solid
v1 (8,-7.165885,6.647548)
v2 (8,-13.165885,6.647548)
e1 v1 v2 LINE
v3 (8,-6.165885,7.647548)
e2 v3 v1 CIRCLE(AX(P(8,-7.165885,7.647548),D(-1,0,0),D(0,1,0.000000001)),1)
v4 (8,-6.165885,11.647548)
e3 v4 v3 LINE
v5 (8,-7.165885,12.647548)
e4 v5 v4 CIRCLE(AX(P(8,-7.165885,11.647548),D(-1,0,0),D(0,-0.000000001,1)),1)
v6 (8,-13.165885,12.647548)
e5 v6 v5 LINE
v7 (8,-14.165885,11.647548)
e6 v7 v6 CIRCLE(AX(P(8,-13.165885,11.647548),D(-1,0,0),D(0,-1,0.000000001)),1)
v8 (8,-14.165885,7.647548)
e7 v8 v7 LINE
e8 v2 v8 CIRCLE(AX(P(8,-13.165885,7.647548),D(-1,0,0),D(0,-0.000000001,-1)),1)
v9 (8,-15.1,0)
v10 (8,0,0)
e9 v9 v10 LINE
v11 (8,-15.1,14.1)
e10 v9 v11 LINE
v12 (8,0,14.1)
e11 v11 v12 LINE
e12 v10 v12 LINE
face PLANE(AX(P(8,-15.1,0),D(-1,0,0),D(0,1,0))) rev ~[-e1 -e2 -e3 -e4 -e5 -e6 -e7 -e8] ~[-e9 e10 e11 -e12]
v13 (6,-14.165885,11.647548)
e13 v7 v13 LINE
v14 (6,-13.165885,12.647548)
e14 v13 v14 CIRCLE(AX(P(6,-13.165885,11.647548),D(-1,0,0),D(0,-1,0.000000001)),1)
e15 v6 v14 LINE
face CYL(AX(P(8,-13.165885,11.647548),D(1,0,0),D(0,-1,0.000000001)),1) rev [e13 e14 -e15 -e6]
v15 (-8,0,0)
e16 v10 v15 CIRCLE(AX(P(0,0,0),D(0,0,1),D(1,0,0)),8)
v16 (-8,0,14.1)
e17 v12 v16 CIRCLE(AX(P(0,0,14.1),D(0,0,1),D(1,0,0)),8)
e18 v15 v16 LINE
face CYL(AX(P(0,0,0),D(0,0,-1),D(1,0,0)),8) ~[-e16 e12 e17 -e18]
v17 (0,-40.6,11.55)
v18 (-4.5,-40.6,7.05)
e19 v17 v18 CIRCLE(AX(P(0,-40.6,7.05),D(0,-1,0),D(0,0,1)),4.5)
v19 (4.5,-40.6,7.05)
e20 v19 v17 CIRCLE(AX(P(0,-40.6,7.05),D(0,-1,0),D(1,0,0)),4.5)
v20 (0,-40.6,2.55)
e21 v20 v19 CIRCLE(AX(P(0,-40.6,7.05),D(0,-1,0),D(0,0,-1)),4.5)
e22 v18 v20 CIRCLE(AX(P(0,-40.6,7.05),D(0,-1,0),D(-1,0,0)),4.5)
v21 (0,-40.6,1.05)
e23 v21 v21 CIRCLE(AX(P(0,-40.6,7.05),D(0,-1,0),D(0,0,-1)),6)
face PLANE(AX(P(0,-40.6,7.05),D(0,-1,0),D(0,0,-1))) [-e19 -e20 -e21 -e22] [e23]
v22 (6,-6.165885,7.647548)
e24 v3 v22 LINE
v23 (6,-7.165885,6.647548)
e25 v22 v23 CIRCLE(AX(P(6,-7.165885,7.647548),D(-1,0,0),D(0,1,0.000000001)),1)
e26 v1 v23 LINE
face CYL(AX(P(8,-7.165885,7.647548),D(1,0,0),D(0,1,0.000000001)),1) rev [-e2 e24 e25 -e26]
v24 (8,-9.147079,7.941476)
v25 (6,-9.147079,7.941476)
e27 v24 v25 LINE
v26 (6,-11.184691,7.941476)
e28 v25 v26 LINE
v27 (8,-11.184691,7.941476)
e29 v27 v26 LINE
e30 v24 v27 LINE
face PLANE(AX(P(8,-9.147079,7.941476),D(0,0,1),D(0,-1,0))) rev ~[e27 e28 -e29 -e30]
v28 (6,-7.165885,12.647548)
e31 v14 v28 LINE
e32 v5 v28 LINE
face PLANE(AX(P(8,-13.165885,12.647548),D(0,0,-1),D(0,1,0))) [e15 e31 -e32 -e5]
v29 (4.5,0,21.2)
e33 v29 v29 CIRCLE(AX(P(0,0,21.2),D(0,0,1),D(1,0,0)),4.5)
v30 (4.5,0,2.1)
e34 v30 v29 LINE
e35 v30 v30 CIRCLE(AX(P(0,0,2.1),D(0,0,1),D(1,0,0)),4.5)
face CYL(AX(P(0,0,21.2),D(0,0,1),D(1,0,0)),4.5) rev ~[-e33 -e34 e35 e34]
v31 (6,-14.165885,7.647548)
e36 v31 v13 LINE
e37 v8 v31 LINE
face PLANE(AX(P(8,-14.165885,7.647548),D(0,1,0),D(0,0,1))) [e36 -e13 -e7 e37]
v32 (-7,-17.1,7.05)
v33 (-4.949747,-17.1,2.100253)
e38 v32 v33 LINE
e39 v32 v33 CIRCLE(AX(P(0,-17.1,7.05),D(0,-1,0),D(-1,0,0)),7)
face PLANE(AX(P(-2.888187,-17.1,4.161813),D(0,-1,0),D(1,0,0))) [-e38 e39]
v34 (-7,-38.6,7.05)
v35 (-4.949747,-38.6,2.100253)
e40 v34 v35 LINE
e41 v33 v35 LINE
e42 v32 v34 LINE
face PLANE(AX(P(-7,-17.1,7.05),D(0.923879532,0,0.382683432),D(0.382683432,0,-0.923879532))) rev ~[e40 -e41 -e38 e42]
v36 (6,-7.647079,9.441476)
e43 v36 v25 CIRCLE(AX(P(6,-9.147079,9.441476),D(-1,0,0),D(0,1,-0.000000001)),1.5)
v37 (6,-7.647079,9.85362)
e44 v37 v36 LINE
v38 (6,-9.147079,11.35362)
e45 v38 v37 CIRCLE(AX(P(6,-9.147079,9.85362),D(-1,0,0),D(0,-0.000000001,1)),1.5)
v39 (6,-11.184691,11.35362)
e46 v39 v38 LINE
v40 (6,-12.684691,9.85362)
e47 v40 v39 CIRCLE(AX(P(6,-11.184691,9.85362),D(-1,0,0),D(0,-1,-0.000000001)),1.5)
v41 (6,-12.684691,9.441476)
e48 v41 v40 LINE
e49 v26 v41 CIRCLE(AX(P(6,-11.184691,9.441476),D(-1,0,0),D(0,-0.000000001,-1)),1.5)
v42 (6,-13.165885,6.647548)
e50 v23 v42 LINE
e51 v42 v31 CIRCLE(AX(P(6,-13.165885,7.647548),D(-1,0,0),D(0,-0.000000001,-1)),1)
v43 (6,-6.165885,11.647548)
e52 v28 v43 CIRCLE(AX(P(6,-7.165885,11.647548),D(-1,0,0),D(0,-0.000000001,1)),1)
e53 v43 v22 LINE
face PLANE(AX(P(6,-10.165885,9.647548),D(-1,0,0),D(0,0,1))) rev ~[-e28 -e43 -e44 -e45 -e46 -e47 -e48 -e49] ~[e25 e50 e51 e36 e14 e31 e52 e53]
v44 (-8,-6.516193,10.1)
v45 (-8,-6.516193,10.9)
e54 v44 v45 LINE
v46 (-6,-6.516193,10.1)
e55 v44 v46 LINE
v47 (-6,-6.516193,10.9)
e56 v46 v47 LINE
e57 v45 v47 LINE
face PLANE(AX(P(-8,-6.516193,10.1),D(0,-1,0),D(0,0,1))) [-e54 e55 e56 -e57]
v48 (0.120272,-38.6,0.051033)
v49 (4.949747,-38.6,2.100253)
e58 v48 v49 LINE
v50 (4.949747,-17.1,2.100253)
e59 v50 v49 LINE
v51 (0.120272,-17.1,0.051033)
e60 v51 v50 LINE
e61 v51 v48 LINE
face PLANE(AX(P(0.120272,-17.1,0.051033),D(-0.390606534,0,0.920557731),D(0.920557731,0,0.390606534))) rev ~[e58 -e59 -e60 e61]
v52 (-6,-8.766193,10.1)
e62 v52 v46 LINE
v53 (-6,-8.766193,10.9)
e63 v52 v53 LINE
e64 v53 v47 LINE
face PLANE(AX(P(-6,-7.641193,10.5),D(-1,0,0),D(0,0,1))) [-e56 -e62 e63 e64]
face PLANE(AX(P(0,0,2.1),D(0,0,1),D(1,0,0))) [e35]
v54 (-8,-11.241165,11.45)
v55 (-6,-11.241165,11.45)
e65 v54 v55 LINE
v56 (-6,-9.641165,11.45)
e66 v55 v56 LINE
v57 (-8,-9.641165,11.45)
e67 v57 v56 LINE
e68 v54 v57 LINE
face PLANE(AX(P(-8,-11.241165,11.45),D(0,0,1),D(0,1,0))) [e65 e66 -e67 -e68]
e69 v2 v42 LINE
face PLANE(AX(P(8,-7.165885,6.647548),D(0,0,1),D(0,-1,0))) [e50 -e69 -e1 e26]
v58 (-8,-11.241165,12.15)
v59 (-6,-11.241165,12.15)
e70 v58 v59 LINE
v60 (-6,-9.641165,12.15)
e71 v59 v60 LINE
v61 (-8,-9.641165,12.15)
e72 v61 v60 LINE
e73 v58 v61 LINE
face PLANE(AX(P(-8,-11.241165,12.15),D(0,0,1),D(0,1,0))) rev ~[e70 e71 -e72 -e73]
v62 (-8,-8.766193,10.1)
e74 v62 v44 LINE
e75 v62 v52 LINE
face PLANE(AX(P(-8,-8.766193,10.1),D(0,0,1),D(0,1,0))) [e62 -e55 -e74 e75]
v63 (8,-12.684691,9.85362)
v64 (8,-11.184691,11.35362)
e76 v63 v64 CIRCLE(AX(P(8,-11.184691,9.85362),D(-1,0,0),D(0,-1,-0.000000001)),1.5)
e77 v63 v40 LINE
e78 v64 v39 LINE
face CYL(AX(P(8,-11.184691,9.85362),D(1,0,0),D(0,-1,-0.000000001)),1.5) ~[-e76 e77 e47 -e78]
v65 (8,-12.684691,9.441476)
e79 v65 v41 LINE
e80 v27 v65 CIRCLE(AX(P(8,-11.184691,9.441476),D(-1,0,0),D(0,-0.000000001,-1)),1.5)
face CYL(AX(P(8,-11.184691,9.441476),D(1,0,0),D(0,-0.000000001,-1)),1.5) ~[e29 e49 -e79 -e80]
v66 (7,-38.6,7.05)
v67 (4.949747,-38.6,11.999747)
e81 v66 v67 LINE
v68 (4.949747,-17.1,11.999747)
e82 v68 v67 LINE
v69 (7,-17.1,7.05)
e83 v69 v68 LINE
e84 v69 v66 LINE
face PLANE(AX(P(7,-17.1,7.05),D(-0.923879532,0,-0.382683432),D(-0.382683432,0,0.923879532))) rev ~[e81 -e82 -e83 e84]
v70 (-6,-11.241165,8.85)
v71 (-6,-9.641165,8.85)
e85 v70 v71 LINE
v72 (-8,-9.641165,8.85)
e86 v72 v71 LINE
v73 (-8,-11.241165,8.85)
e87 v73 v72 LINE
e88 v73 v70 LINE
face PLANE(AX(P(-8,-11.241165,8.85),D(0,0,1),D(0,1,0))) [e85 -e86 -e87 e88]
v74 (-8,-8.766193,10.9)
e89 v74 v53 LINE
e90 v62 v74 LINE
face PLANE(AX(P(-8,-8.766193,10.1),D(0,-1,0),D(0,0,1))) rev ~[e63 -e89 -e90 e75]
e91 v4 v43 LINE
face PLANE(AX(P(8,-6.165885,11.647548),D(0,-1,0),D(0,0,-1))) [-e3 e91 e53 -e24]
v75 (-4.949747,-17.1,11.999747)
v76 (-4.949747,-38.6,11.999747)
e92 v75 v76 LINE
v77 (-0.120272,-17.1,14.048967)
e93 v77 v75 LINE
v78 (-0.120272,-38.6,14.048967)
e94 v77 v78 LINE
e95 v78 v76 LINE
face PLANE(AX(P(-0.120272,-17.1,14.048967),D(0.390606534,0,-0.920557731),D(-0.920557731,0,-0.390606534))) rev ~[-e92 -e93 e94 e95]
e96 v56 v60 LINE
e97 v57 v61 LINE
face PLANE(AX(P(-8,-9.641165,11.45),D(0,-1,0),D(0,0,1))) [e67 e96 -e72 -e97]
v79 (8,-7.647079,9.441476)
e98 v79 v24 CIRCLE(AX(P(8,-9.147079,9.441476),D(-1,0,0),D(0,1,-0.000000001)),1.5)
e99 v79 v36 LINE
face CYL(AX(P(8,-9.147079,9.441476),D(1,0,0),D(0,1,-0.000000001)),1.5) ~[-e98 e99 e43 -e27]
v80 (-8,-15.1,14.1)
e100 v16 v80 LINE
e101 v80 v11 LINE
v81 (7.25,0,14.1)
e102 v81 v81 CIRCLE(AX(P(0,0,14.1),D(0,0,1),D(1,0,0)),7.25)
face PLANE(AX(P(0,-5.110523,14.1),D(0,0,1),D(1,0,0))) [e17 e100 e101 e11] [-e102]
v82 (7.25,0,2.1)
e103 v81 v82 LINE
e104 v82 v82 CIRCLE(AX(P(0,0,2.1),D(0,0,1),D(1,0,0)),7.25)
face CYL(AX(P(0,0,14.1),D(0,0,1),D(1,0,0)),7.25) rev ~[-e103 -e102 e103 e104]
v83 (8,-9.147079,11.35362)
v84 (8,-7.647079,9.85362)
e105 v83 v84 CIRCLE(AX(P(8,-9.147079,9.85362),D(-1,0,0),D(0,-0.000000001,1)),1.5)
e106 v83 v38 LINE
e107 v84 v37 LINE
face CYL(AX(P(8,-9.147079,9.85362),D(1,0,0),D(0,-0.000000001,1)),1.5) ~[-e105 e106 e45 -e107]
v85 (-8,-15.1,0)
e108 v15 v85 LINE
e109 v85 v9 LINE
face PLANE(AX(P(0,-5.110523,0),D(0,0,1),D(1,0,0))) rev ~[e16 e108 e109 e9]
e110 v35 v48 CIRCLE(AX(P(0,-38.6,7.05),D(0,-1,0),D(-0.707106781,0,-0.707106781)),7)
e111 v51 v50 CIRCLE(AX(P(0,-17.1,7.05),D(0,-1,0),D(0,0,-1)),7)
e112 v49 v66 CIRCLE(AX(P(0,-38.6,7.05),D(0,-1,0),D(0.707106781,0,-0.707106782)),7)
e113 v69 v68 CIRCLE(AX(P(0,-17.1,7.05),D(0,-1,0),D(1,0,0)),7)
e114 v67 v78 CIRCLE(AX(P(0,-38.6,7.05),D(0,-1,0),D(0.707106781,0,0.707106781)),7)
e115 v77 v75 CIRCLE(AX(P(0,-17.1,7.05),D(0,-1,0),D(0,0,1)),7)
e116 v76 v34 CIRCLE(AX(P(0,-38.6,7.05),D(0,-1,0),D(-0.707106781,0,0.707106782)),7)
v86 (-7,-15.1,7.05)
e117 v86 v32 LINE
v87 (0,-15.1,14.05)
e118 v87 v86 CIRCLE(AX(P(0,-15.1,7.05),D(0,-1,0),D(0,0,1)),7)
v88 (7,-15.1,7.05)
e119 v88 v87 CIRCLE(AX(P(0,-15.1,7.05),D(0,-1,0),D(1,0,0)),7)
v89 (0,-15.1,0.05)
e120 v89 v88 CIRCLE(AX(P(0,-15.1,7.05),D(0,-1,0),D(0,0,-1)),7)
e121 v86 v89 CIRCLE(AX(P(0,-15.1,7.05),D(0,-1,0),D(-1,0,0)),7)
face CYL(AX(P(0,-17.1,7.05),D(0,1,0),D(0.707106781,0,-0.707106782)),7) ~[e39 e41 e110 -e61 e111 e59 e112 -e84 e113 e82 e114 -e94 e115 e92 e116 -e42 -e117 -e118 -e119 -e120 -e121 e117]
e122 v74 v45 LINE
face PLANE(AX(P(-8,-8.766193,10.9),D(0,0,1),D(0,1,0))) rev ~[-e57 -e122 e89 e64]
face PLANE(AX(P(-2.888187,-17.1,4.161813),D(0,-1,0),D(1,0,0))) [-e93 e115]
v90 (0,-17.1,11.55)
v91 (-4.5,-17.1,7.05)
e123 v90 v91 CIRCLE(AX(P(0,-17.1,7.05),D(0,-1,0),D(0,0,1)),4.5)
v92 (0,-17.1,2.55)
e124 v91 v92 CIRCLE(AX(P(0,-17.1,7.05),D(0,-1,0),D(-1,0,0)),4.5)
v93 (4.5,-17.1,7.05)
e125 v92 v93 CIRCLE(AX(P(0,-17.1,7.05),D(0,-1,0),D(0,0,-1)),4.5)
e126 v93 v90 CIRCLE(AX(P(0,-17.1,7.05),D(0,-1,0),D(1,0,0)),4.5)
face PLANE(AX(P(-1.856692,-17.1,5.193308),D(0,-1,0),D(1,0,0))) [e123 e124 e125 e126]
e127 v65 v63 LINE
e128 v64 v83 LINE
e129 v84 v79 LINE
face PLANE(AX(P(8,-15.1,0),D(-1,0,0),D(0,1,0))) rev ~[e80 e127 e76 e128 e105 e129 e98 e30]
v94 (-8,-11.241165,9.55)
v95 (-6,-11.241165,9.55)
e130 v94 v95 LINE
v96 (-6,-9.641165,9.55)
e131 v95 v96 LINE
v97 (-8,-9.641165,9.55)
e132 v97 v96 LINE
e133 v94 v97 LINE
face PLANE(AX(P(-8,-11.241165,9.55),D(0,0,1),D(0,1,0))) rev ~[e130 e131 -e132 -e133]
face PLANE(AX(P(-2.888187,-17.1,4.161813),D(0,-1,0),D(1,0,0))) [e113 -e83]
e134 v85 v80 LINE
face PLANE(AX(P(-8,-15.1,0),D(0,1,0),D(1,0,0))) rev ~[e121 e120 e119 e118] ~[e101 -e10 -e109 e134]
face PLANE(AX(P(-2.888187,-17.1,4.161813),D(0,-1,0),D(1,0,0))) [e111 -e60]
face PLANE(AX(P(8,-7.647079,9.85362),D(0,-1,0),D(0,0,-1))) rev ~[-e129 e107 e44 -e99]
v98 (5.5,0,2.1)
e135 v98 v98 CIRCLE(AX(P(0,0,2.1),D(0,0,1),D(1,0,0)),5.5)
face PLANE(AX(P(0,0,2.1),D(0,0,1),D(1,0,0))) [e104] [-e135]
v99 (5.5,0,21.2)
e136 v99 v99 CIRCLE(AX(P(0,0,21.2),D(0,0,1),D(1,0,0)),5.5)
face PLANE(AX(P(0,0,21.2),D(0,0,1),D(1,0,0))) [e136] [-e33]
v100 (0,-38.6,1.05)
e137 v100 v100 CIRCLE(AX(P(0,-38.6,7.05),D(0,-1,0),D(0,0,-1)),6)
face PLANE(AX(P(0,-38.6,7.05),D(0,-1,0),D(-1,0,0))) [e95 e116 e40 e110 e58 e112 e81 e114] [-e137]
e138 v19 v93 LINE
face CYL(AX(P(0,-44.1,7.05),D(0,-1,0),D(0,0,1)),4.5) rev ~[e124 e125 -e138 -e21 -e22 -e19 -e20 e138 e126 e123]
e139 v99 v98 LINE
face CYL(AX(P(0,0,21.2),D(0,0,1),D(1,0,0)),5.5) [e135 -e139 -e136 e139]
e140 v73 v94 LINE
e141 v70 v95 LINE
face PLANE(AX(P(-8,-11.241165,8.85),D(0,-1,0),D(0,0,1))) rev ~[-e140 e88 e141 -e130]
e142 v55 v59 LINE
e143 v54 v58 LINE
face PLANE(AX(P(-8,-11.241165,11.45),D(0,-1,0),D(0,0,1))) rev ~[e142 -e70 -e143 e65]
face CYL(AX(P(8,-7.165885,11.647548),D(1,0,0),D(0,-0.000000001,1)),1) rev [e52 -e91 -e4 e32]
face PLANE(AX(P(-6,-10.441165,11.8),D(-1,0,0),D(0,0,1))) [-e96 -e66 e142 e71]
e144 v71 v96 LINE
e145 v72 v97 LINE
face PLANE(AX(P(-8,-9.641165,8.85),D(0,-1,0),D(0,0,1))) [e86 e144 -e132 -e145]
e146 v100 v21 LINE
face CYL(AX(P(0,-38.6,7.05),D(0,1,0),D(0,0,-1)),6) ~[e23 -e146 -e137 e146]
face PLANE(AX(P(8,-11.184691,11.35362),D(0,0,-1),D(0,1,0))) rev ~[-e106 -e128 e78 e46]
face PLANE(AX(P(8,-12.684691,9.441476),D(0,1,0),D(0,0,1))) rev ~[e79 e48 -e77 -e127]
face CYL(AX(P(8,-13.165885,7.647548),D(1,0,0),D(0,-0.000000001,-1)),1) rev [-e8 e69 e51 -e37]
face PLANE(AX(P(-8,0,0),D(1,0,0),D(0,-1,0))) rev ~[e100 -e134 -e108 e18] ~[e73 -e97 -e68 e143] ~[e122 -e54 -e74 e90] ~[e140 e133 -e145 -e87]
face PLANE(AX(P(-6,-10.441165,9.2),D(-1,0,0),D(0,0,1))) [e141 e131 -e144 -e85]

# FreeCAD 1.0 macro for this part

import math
import FreeCAD as App
import Part
import Sketcher

V = App.Vector
Q = App.Units.Quantity


def add_polygon(sketch, points):
    """Adds a closed chain of lines whose ends are joined by coincident constraints."""
    first, n = sketch.GeometryCount, len(points)
    for a, b in zip(points, points[1:] + points[:1]):
        sketch.addGeometry(Part.LineSegment(App.Vector(*a, 0), App.Vector(*b, 0)), False)
    for i in range(n):
        sketch.addConstraint(Sketcher.Constraint("Coincident", first + i, 2, first + (i + 1) % n, 1))

doc = App.newDocument("Part")
body = doc.addObject("PartDesign::Body", "Body")

sketch1 = body.newObject("Sketcher::SketchObject", "Sketch")
sketch1.AttachmentSupport = (doc.getObject("XY_Plane"), [""])
sketch1.MapMode = "FlatFace"
sketch1.addGeometry(Part.LineSegment(V(8, -15, 0), V(8, 0, 0)), False)
sketch1.addGeometry(Part.ArcOfCircle(Part.Circle(V(0, 0, 0), V(0, 0, 1), 8), math.radians(0), math.radians(180)), False)
sketch1.addGeometry(Part.LineSegment(V(-8, 0, 0), V(-8, -15, 0)), False)
sketch1.addGeometry(Part.LineSegment(V(-8, -15, 0), V(8, -15, 0)), False)
sketch1.addConstraint(Sketcher.Constraint("Tangent", 0, 2, 1, 1))
sketch1.addConstraint(Sketcher.Constraint("Tangent", 1, 2, 2, 1))
sketch1.addConstraint(Sketcher.Constraint("Coincident", 2, 2, 3, 1))
sketch1.addConstraint(Sketcher.Constraint("Coincident", 3, 2, 0, 1))
sketch1.addConstraint(Sketcher.Constraint("Vertical", 0))
sketch1.addConstraint(Sketcher.Constraint("Vertical", 2))
sketch1.addConstraint(Sketcher.Constraint("Horizontal", 3))
sketch1.addConstraint(Sketcher.Constraint("Coincident", 1, 3, -1, 1))
sketch1.addConstraint(Sketcher.Constraint("Radius", 1, Q("8 mm")))
sketch1.addConstraint(Sketcher.Constraint("DistanceY", 0, 1, 0, 2, Q("15.1 mm")))
pad1 = body.newObject("PartDesign::Pad", "Pad")
pad1.Profile = sketch1
pad1.Length = 14.1

sketch2 = body.newObject("Sketcher::SketchObject", "Sketch001")
sketch2.AttachmentSupport = (doc.getObject("XZ_Plane"), [""])
sketch2.MapMode = "FlatFace"
sketch2.AttachmentOffset = App.Placement(V(0, 0, 15.1), App.Rotation())
sketch2.addGeometry(Part.ArcOfCircle(Part.Circle(V(0, 7, 0), V(0, 0, 1), 7), math.radians(-90), math.radians(0)), False)
sketch2.addGeometry(Part.ArcOfCircle(Part.Circle(V(0, 7, 0), V(0, 0, 1), 7), math.radians(0), math.radians(90)), False)
sketch2.addGeometry(Part.ArcOfCircle(Part.Circle(V(0, 7, 0), V(0, 0, 1), 7), math.radians(90), math.radians(180)), False)
sketch2.addGeometry(Part.ArcOfCircle(Part.Circle(V(0, 7, 0), V(0, 0, 1), 7), math.radians(-180), math.radians(-90)), False)
sketch2.addConstraint(Sketcher.Constraint("Tangent", 0, 2, 1, 1))
sketch2.addConstraint(Sketcher.Constraint("Tangent", 1, 2, 2, 1))
sketch2.addConstraint(Sketcher.Constraint("Tangent", 2, 2, 3, 1))
sketch2.addConstraint(Sketcher.Constraint("Tangent", 3, 2, 0, 1))
sketch2.addConstraint(Sketcher.Constraint("Equal", 0, 1))
sketch2.addConstraint(Sketcher.Constraint("Symmetric", 0, 2, 2, 2, -2))
sketch2.addConstraint(Sketcher.Constraint("PointOnObject", 1, 2, -2))
sketch2.addConstraint(Sketcher.Constraint("PointOnObject", 3, 2, -2))
sketch2.addConstraint(Sketcher.Constraint("Horizontal", 3, 3, 0, 2))
sketch2.addConstraint(Sketcher.Constraint("Radius", 0, Q("7 mm")))
sketch2.addConstraint(Sketcher.Constraint("DistanceY", -1, 1, 0, 3, Q("7.05 mm")))
pad2 = body.newObject("PartDesign::Pad", "Pad001")
pad2.Profile = sketch2
pad2.Length = 2

sketch3 = body.newObject("Sketcher::SketchObject", "Sketch002")
sketch3.AttachmentSupport = (doc.getObject("XZ_Plane"), [""])
sketch3.MapMode = "FlatFace"
sketch3.AttachmentOffset = App.Placement(V(0, 0, 17.1), App.Rotation())
sketch3.addGeometry(Part.ArcOfCircle(Part.Circle(V(0, 7, 0), V(0, 0, 1), 7), math.radians(-45), math.radians(0)), False)
sketch3.addGeometry(Part.LineSegment(V(7, 7, 0), V(5, 12, 0)), False)
sketch3.addGeometry(Part.ArcOfCircle(Part.Circle(V(0, 7, 0), V(0, 0, 1), 7), math.radians(45), math.radians(91)), False)
sketch3.addGeometry(Part.LineSegment(V(0, 14, 0), V(-5, 12, 0)), False)
sketch3.addGeometry(Part.ArcOfCircle(Part.Circle(V(0, 7, 0), V(0, 0, 1), 7), math.radians(135), math.radians(180)), False)
sketch3.addGeometry(Part.LineSegment(V(-7, 7, 0), V(-5, 2, 0)), False)
sketch3.addGeometry(Part.ArcOfCircle(Part.Circle(V(0, 7, 0), V(0, 0, 1), 7), math.radians(-135), math.radians(-89)), False)
sketch3.addGeometry(Part.LineSegment(V(0, 0, 0), V(5, 2, 0)), False)
sketch3.addConstraint(Sketcher.Constraint("Coincident", 0, 2, 1, 1))
sketch3.addConstraint(Sketcher.Constraint("Coincident", 1, 2, 2, 1))
sketch3.addConstraint(Sketcher.Constraint("Coincident", 2, 2, 3, 1))
sketch3.addConstraint(Sketcher.Constraint("Coincident", 3, 2, 4, 1))
sketch3.addConstraint(Sketcher.Constraint("Coincident", 4, 2, 5, 1))
sketch3.addConstraint(Sketcher.Constraint("Coincident", 5, 2, 6, 1))
sketch3.addConstraint(Sketcher.Constraint("Coincident", 6, 2, 7, 1))
sketch3.addConstraint(Sketcher.Constraint("Coincident", 7, 2, 0, 1))
sketch3.addConstraint(Sketcher.Constraint("Coincident", 2, 3, 0, 3))
sketch3.addConstraint(Sketcher.Constraint("Coincident", 4, 3, 0, 3))
sketch3.addConstraint(Sketcher.Constraint("Coincident", 6, 3, 0, 3))
sketch3.addConstraint(Sketcher.Constraint("Equal", 0, 2))
sketch3.addConstraint(Sketcher.Constraint("Equal", 2, 4))
sketch3.addConstraint(Sketcher.Constraint("Equal", 4, 6))
sketch3.addConstraint(Sketcher.Constraint("Symmetric", 1, 2, 3, 2, -2))
sketch3.addConstraint(Sketcher.Constraint("Parallel", 1, 5))
sketch3.addConstraint(Sketcher.Constraint("Parallel", 3, 7))
sketch3.addConstraint(Sketcher.Constraint("Horizontal", 6, 3, 0, 2))
sketch3.addConstraint(Sketcher.Constraint("Horizontal", 0, 2, 4, 2))
sketch3.addConstraint(Sketcher.Constraint("Horizontal", 5, 2, 7, 2))
sketch3.addConstraint(Sketcher.Constraint("Radius", 0, Q("7 mm")))
sketch3.addConstraint(Sketcher.Constraint("Angle", 1, Q("112.5 deg")))
sketch3.addConstraint(Sketcher.Constraint("DistanceY", -1, 1, 0, 3, Q("7.05 mm")))
sketch3.addConstraint(Sketcher.Constraint("Distance", 3, Q("5.246249 mm")))
pad3 = body.newObject("PartDesign::Pad", "Pad002")
pad3.Profile = sketch3
pad3.Length = 21.5

sketch4 = body.newObject("Sketcher::SketchObject", "Sketch003")
sketch4.AttachmentSupport = (doc.getObject("XZ_Plane"), [""])
sketch4.MapMode = "FlatFace"
sketch4.AttachmentOffset = App.Placement(V(0, 0, 38.6), App.Rotation())
sketch4.addGeometry(Part.Circle(V(0, 7, 0), V(0, 0, 1), 4.5), False)
sketch4.addConstraint(Sketcher.Constraint("PointOnObject", 0, 3, -2))
sketch4.addConstraint(Sketcher.Constraint("Diameter", 0, Q("9 mm")))
sketch4.addConstraint(Sketcher.Constraint("DistanceY", -1, 1, 0, 3, Q("7.05 mm")))
pocket1 = body.newObject("PartDesign::Pocket", "Pocket")
pocket1.Profile = sketch4
pocket1.Length = 20

sketch5 = body.newObject("Sketcher::SketchObject", "Sketch004")
sketch5.AttachmentSupport = (doc.getObject("XZ_Plane"), [""])
sketch5.MapMode = "FlatFace"
sketch5.AttachmentOffset = App.Placement(V(0, 0, 38.6), App.Rotation())
sketch5.addGeometry(Part.Circle(V(0, 7, 0), V(0, 0, 1), 6), False)
sketch5.addConstraint(Sketcher.Constraint("PointOnObject", 0, 3, -2))
sketch5.addConstraint(Sketcher.Constraint("Diameter", 0, Q("12 mm")))
sketch5.addConstraint(Sketcher.Constraint("DistanceY", -1, 1, 0, 3, Q("7.05 mm")))
pad4 = body.newObject("PartDesign::Pad", "Pad003")
pad4.Profile = sketch5
pad4.Length = 2

sketch6 = body.newObject("Sketcher::SketchObject", "Sketch005")
sketch6.AttachmentSupport = (doc.getObject("XZ_Plane"), [""])
sketch6.MapMode = "FlatFace"
sketch6.AttachmentOffset = App.Placement(V(0, 0, 44.1), App.Rotation())
sketch6.addGeometry(Part.ArcOfCircle(Part.Circle(V(0, 7.1, 0), V(0, 0, 1), 4.5), math.radians(-90), math.radians(0)), False)
sketch6.addGeometry(Part.ArcOfCircle(Part.Circle(V(0, 7, 0), V(0, 0, 1), 4.5), math.radians(0), math.radians(90)), False)
sketch6.addGeometry(Part.ArcOfCircle(Part.Circle(V(0, 7, 0), V(0, 0, 1), 4.5), math.radians(90), math.radians(180)), False)
sketch6.addGeometry(Part.ArcOfCircle(Part.Circle(V(0, 7.1, 0), V(0, 0, 1), 4.5), math.radians(-180), math.radians(-90)), False)
sketch6.addConstraint(Sketcher.Constraint("Tangent", 0, 2, 1, 1))
sketch6.addConstraint(Sketcher.Constraint("Tangent", 1, 2, 2, 1))
sketch6.addConstraint(Sketcher.Constraint("Tangent", 2, 2, 3, 1))
sketch6.addConstraint(Sketcher.Constraint("Tangent", 3, 2, 0, 1))
sketch6.addConstraint(Sketcher.Constraint("Equal", 0, 1))
sketch6.addConstraint(Sketcher.Constraint("Symmetric", 0, 2, 2, 2, -2))
sketch6.addConstraint(Sketcher.Constraint("PointOnObject", 1, 2, -2))
sketch6.addConstraint(Sketcher.Constraint("PointOnObject", 3, 2, -2))
sketch6.addConstraint(Sketcher.Constraint("Horizontal", 3, 3, 0, 2))
sketch6.addConstraint(Sketcher.Constraint("Radius", 0, Q("4.5 mm")))
sketch6.addConstraint(Sketcher.Constraint("DistanceY", -1, 1, 0, 3, Q("7.05 mm")))
pocket2 = body.newObject("PartDesign::Pocket", "Pocket001")
pocket2.Profile = sketch6
pocket2.Length = 27

sketch7 = body.newObject("Sketcher::SketchObject", "Sketch006")
sketch7.AttachmentSupport = (doc.getObject("XY_Plane"), [""])
sketch7.MapMode = "FlatFace"
sketch7.AttachmentOffset = App.Placement(V(0, 0, 14.1), App.Rotation())
sketch7.addGeometry(Part.Circle(V(0, 0, 0), V(0, 0, 1), 4.5), False)
sketch7.addConstraint(Sketcher.Constraint("Coincident", 0, 3, -1, 1))
sketch7.addConstraint(Sketcher.Constraint("Diameter", 0, Q("9 mm")))
pocket3 = body.newObject("PartDesign::Pocket", "Pocket002")
pocket3.Profile = sketch7
pocket3.Length = 12

sketch8 = body.newObject("Sketcher::SketchObject", "Sketch007")
sketch8.AttachmentSupport = (doc.getObject("XY_Plane"), [""])
sketch8.MapMode = "FlatFace"
sketch8.AttachmentOffset = App.Placement(V(0, 0, 14.1), App.Rotation())
sketch8.addGeometry(Part.Circle(V(0, 0, 0), V(0, 0, 1), 7), False)
sketch8.addGeometry(Part.Circle(V(0, 0, 0), V(0, 0, 1), 6), False)
sketch8.addConstraint(Sketcher.Constraint("Coincident", 0, 3, -1, 1))
sketch8.addConstraint(Sketcher.Constraint("Coincident", 1, 3, -1, 1))
sketch8.addConstraint(Sketcher.Constraint("Diameter", 1, Q("11 mm")))
sketch8.addConstraint(Sketcher.Constraint("Diameter", 0, Q("14.5 mm")))
pocket4 = body.newObject("PartDesign::Pocket", "Pocket003")
pocket4.Profile = sketch8
pocket4.Length = 12

sketch9 = body.newObject("Sketcher::SketchObject", "Sketch008")
sketch9.AttachmentSupport = (doc.getObject("XY_Plane"), [""])
sketch9.MapMode = "FlatFace"
sketch9.AttachmentOffset = App.Placement(V(0, 0, 21.2), App.Rotation())
sketch9.addGeometry(Part.Circle(V(0, 0, 0), V(0, 0, 1), 5.5), False)
sketch9.addGeometry(Part.Circle(V(0, 0, 0), V(0, 0, 1), 4.5), False)
sketch9.addConstraint(Sketcher.Constraint("Coincident", 0, 3, -1, 1))
sketch9.addConstraint(Sketcher.Constraint("Coincident", 1, 3, -1, 1))
sketch9.addConstraint(Sketcher.Constraint("Diameter", 0, Q("11 mm")))
sketch9.addConstraint(Sketcher.Constraint("Diameter", 1, Q("9 mm")))
pad5 = body.newObject("PartDesign::Pad", "Pad004")
pad5.Profile = sketch9
pad5.Length = 7.1
pad5.Reversed = True

sketch10 = body.newObject("Sketcher::SketchObject", "Sketch009")
sketch10.AttachmentSupport = (doc.getObject("YZ_Plane"), [""])
sketch10.MapMode = "FlatFace"
sketch10.AttachmentOffset = App.Placement(V(0, 0, -8), App.Rotation())
add_polygon(sketch10, [(-6.5, 10.1), (-8.8, 10.1), (-8.8, 10.9), (-6.5, 10.9)])
add_polygon(sketch10, [(-9.6, 11.4), (-11.2, 11.4), (-11.2, 12.2), (-9.6, 12.2)])
add_polygon(sketch10, [(-9.6, 8.8), (-11.2, 8.8), (-11.2, 9.6), (-9.6, 9.6)])
sketch10.addConstraint(Sketcher.Constraint("Horizontal", 0))
sketch10.addConstraint(Sketcher.Constraint("Vertical", 1))
sketch10.addConstraint(Sketcher.Constraint("Horizontal", 2))
sketch10.addConstraint(Sketcher.Constraint("Vertical", 3))
sketch10.addConstraint(Sketcher.Constraint("Horizontal", 4))
sketch10.addConstraint(Sketcher.Constraint("Vertical", 5))
sketch10.addConstraint(Sketcher.Constraint("Horizontal", 6))
sketch10.addConstraint(Sketcher.Constraint("Vertical", 7))
sketch10.addConstraint(Sketcher.Constraint("Horizontal", 8))
sketch10.addConstraint(Sketcher.Constraint("Vertical", 9))
sketch10.addConstraint(Sketcher.Constraint("Horizontal", 10))
sketch10.addConstraint(Sketcher.Constraint("Vertical", 11))
sketch10.addConstraint(Sketcher.Constraint("Vertical", 5, 2, 8, 2))
sketch10.addConstraint(Sketcher.Constraint("Vertical", 7, 2, 10, 2))
sketch10.addConstraint(Sketcher.Constraint("Equal", 7, 9))
sketch10.addConstraint(Sketcher.Constraint("DistanceX", 4, 2, 4, 1, Q("1.6 mm")))
sketch10.addConstraint(Sketcher.Constraint("DistanceY", 1, 1, 1, 2, Q("0.8 mm")))
sketch10.addConstraint(Sketcher.Constraint("DistanceY", 5, 1, 5, 2, Q("0.7 mm")))
sketch10.addConstraint(Sketcher.Constraint("DistanceX", 0, 2, 0, 1, Q("2.25 mm")))
sketch10.addConstraint(Sketcher.Constraint("DistanceY", -1, 1, 0, 2, Q("10.1 mm")))
sketch10.addConstraint(Sketcher.Constraint("DistanceY", 8, 2, 4, 2, Q("2.6 mm")))
sketch10.addConstraint(Sketcher.Constraint("DistanceY", -1, 1, 4, 2, Q("11.45 mm")))
sketch10.addConstraint(Sketcher.Constraint("DistanceX", 4, 2, 1, 2, Q("2.474972 mm")))
sketch10.addConstraint(Sketcher.Constraint("DistanceX", 0, 2, -1, 1, Q("8.766193 mm")))
pocket5 = body.newObject("PartDesign::Pocket", "Pocket004")
pocket5.Profile = sketch10
pocket5.Length = 2
pocket5.Reversed = True

sketch11 = body.newObject("Sketcher::SketchObject", "Sketch010")
sketch11.AttachmentSupport = (doc.getObject("YZ_Plane"), [""])
sketch11.MapMode = "FlatFace"
sketch11.AttachmentOffset = App.Placement(V(0, 0, 8), App.Rotation())
sketch11.addGeometry(Part.LineSegment(V(-14.17, 11.65, 0), V(-14.17, 7.65, 0)), False)
sketch11.addGeometry(Part.ArcOfCircle(Part.Circle(V(-13.17, 7.65, 0), V(0, 0, 1), 1), math.radians(-180), math.radians(-90)), False)
sketch11.addGeometry(Part.LineSegment(V(-13.17, 6.65, 0), V(-7.17, 6.65, 0)), False)
sketch11.addGeometry(Part.ArcOfCircle(Part.Circle(V(-7.17, 7.65, 0), V(0, 0, 1), 1), math.radians(-90), math.radians(0)), False)
sketch11.addGeometry(Part.LineSegment(V(-6.17, 7.65, 0), V(-6.17, 11.65, 0)), False)
sketch11.addGeometry(Part.ArcOfCircle(Part.Circle(V(-7.17, 11.65, 0), V(0, 0, 1), 1), math.radians(0), math.radians(90)), False)
sketch11.addGeometry(Part.LineSegment(V(-7.17, 12.65, 0), V(-13.17, 12.65, 0)), False)
sketch11.addGeometry(Part.ArcOfCircle(Part.Circle(V(-13.17, 11.65, 0), V(0, 0, 1), 1), math.radians(90), math.radians(180)), False)
sketch11.addGeometry(Part.LineSegment(V(-12.68, 9.44, 0), V(-12.68, 9.85, 0)), False)
sketch11.addGeometry(Part.ArcOfCircle(Part.Circle(V(-11.18, 9.85, 0), V(0, 0, 1), 1.5), math.radians(90), math.radians(180)), False)
sketch11.addGeometry(Part.LineSegment(V(-11.18, 11.35, 0), V(-9.15, 11.35, 0)), False)
sketch11.addGeometry(Part.ArcOfCircle(Part.Circle(V(-9.15, 9.85, 0), V(0, 0, 1), 1.5), math.radians(0), math.radians(90)), False)
sketch11.addGeometry(Part.LineSegment(V(-7.65, 9.85, 0), V(-7.65, 9.44, 0)), False)
sketch11.addGeometry(Part.ArcOfCircle(Part.Circle(V(-9.15, 9.44, 0), V(0, 0, 1), 1.5), math.radians(-90), math.radians(0)), False)
sketch11.addGeometry(Part.LineSegment(V(-9.15, 7.94, 0), V(-11.18, 7.94, 0)), False)
sketch11.addGeometry(Part.ArcOfCircle(Part.Circle(V(-11.18, 9.44, 0), V(0, 0, 1), 1.5), math.radians(-180), math.radians(-90)), False)
sketch11.addConstraint(Sketcher.Constraint("Tangent", 0, 2, 1, 1))
sketch11.addConstraint(Sketcher.Constraint("Tangent", 1, 2, 2, 1))
sketch11.addConstraint(Sketcher.Constraint("Tangent", 2, 2, 3, 1))
sketch11.addConstraint(Sketcher.Constraint("Tangent", 3, 2, 4, 1))
sketch11.addConstraint(Sketcher.Constraint("Tangent", 4, 2, 5, 1))
sketch11.addConstraint(Sketcher.Constraint("Tangent", 5, 2, 6, 1))
sketch11.addConstraint(Sketcher.Constraint("Tangent", 6, 2, 7, 1))
sketch11.addConstraint(Sketcher.Constraint("Tangent", 7, 2, 0, 1))
sketch11.addConstraint(Sketcher.Constraint("Tangent", 8, 2, 9, 2))
sketch11.addConstraint(Sketcher.Constraint("Tangent", 9, 1, 10, 1))
sketch11.addConstraint(Sketcher.Constraint("Tangent", 10, 2, 11, 2))
sketch11.addConstraint(Sketcher.Constraint("Tangent", 11, 1, 12, 1))
sketch11.addConstraint(Sketcher.Constraint("Tangent", 12, 2, 13, 2))
sketch11.addConstraint(Sketcher.Constraint("Tangent", 13, 1, 14, 1))
sketch11.addConstraint(Sketcher.Constraint("Tangent", 14, 2, 15, 2))
sketch11.addConstraint(Sketcher.Constraint("Tangent", 15, 1, 8, 1))
sketch11.addConstraint(Sketcher.Constraint("Vertical", 0))
sketch11.addConstraint(Sketcher.Constraint("Horizontal", 2))
sketch11.addConstraint(Sketcher.Constraint("Vertical", 4))
sketch11.addConstraint(Sketcher.Constraint("Horizontal", 6))
sketch11.addConstraint(Sketcher.Constraint("Vertical", 8))
sketch11.addConstraint(Sketcher.Constraint("Horizontal", 10))
sketch11.addConstraint(Sketcher.Constraint("Vertical", 12))
sketch11.addConstraint(Sketcher.Constraint("Horizontal", 14))
sketch11.addConstraint(Sketcher.Constraint("Equal", 1, 3))
sketch11.addConstraint(Sketcher.Constraint("Equal", 3, 5))
sketch11.addConstraint(Sketcher.Constraint("Equal", 5, 7))
sketch11.addConstraint(Sketcher.Constraint("Equal", 9, 11))
sketch11.addConstraint(Sketcher.Constraint("Equal", 11, 13))
sketch11.addConstraint(Sketcher.Constraint("Equal", 13, 15))
sketch11.addConstraint(Sketcher.Constraint("Radius", 1, Q("1 mm")))
sketch11.addConstraint(Sketcher.Constraint("Radius", 9, Q("1.5 mm")))
sketch11.addConstraint(Sketcher.Constraint("DistanceX", 2, 1, 2, 2, Q("6 mm")))
sketch11.addConstraint(Sketcher.Constraint("DistanceY", 0, 2, 0, 1, Q("4 mm")))
sketch11.addConstraint(Sketcher.Constraint("DistanceX", 10, 1, 10, 2, Q("2.037612 mm")))
sketch11.addConstraint(Sketcher.Constraint("DistanceY", 8, 1, 8, 2, Q("0.412144 mm")))
sketch11.addConstraint(Sketcher.Constraint("DistanceY", -1, 1, 1, 3, Q("7.647548 mm")))
sketch11.addConstraint(Sketcher.Constraint("DistanceX", 9, 3, -1, 1, Q("11.184691 mm")))
sketch11.addConstraint(Sketcher.Constraint("DistanceY", -1, 1, 9, 3, Q("9.85362 mm")))
sketch11.addConstraint(Sketcher.Constraint("DistanceX", 1, 3, -1, 1, Q("13.165885 mm")))
pocket6 = body.newObject("PartDesign::Pocket", "Pocket005")
pocket6.Profile = sketch11
pocket6.Length = 2

doc.recompute()
